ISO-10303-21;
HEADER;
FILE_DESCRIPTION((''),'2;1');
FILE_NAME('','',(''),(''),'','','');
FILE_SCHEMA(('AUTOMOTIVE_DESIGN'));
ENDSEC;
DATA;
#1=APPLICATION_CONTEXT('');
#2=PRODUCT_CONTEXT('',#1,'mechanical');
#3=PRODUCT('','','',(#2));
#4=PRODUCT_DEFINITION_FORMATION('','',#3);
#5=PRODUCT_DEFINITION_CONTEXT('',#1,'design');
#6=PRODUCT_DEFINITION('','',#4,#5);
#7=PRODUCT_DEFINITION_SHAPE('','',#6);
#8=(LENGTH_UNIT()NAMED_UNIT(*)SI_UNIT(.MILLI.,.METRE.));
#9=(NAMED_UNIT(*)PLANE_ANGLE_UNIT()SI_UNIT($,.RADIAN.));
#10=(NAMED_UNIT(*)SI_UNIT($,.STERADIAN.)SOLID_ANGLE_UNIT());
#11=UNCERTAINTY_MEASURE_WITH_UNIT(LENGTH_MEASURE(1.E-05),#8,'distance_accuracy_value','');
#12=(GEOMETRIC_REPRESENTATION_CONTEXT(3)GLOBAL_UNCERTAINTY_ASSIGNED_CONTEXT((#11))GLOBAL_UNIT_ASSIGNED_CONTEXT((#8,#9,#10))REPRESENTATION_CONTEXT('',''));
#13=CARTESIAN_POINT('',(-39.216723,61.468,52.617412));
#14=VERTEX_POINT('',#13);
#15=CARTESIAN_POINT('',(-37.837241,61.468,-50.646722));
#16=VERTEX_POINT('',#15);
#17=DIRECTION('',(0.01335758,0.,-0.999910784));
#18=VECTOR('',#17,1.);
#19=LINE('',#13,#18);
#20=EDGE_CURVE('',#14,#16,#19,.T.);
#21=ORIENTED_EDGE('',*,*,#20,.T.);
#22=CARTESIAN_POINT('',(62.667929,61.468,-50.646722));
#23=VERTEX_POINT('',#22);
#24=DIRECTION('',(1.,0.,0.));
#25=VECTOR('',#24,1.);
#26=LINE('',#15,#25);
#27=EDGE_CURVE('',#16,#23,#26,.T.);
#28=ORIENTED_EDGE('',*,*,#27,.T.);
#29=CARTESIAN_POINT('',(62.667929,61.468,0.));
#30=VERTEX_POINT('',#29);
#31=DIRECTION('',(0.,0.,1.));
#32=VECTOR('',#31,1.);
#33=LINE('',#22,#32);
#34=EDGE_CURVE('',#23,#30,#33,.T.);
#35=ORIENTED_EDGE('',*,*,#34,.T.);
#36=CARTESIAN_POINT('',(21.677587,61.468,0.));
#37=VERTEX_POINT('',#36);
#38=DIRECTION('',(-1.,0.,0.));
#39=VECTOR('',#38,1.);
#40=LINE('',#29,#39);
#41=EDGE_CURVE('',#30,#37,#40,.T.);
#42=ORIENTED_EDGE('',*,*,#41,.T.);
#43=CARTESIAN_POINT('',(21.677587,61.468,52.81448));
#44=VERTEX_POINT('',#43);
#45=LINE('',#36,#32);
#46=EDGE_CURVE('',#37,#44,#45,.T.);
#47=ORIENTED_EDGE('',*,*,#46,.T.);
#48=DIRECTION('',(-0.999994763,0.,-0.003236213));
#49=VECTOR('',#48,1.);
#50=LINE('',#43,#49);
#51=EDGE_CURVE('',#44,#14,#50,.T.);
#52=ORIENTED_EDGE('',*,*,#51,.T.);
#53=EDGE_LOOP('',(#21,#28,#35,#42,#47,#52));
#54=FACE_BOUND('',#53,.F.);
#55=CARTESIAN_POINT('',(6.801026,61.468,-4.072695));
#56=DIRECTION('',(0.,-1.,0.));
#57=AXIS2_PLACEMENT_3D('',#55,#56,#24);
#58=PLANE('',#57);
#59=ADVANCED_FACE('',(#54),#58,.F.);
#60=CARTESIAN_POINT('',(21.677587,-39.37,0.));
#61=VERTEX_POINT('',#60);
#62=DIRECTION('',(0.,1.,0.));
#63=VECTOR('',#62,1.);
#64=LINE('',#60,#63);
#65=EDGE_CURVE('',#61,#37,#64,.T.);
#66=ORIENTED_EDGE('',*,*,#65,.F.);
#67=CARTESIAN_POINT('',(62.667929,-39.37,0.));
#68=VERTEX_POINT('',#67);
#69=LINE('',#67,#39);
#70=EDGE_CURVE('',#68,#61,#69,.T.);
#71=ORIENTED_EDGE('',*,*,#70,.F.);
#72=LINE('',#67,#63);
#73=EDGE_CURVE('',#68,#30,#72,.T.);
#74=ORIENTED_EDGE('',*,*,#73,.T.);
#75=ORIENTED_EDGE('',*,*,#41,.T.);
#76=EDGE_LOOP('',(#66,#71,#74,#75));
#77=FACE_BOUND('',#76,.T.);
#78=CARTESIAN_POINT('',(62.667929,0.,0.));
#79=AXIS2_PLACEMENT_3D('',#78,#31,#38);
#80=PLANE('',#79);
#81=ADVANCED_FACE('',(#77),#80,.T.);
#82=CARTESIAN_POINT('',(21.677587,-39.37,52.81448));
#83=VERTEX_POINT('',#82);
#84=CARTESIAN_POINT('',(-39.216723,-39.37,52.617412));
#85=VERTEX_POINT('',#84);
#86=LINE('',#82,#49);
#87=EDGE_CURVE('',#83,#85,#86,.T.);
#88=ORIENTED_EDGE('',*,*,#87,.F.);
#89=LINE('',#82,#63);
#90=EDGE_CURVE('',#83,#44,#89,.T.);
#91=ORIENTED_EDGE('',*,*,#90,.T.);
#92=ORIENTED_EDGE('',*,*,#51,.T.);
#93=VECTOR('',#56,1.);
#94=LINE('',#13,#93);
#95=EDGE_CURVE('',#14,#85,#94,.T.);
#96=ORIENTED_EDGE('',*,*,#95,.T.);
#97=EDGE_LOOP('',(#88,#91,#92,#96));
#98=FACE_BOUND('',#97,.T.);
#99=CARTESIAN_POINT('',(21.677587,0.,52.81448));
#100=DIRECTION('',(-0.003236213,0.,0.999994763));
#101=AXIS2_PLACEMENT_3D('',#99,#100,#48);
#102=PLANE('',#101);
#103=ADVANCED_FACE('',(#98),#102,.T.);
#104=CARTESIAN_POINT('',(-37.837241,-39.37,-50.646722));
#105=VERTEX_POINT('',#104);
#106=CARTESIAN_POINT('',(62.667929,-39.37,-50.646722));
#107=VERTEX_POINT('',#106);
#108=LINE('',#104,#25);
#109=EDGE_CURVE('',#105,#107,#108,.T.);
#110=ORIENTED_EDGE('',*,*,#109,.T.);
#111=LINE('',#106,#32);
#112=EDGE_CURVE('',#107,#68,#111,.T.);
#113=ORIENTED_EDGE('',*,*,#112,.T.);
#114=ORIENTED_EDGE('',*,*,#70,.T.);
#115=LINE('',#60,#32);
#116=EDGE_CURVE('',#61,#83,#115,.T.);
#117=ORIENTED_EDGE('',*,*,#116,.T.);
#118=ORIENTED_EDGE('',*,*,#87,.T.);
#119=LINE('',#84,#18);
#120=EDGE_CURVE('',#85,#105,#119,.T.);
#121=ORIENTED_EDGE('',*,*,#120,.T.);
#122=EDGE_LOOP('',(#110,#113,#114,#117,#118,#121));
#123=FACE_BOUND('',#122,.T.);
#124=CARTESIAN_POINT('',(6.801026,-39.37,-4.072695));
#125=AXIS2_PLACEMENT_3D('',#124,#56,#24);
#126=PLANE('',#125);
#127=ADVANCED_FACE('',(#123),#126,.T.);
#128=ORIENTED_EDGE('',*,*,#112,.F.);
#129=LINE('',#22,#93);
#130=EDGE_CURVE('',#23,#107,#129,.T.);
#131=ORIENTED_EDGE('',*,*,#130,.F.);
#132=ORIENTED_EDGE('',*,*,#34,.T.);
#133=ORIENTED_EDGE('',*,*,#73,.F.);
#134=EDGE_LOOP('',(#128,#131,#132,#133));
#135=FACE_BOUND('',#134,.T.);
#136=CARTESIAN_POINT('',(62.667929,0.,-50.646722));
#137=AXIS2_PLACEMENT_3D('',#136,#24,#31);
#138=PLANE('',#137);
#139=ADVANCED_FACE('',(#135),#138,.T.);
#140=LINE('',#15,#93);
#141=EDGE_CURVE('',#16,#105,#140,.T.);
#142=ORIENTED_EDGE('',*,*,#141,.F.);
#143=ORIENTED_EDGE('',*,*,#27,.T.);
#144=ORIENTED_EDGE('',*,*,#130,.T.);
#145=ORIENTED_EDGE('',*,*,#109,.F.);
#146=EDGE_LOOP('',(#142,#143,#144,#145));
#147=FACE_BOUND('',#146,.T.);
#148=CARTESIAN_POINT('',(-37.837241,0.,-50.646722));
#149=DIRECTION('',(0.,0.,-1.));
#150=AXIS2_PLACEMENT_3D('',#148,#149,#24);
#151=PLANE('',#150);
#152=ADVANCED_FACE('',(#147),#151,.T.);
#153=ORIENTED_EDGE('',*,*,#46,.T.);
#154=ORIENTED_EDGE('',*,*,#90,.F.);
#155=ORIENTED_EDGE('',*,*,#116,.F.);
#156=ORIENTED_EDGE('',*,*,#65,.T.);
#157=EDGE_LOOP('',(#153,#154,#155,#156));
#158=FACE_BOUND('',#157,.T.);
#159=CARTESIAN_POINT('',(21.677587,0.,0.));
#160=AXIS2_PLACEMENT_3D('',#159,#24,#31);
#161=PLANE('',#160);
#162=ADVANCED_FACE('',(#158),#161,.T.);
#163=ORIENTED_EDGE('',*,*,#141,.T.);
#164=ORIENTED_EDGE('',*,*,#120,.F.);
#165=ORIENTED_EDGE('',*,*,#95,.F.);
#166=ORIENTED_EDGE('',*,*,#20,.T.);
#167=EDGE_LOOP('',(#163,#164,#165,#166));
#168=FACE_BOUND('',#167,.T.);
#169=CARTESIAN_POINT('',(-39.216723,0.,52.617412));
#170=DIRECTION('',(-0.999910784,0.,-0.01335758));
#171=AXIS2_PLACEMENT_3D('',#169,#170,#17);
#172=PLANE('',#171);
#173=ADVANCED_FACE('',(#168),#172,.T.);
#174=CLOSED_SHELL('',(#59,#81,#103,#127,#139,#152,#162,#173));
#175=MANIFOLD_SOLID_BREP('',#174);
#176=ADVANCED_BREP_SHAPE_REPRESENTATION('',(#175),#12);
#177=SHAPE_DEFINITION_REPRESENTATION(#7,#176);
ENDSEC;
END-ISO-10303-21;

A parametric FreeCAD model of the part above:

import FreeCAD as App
import Part
import Sketcher
from FreeCAD import Vector
Q = App.Units.Quantity

doc = App.newDocument("Part")
body = doc.addObject("PartDesign::Body", "Body")

# Sketch on XZ plane
sketch1 = body.newObject("Sketcher::SketchObject", "Sketch")
sketch1.AttachmentSupport = (doc.getObject("XZ_Plane"), [""])
sketch1.MapMode = "FlatFace"
sketch1.addGeometry(Part.LineSegment(Vector(21.677587, 52.81448, 0), Vector(-39.216723, 52.617412, 0)), False)
sketch1.addGeometry(Part.LineSegment(Vector(-39.216723, 52.617412, 0), Vector(-37.837241, -50.646722, 0)), False)
sketch1.addGeometry(Part.LineSegment(Vector(-37.837241, -50.646722, 0), Vector(62.667929, -50.646722, 0)), False)
sketch1.addGeometry(Part.LineSegment(Vector(62.667929, -50.646722, 0), Vector(62.667929, 0, 0)), False)
sketch1.addGeometry(Part.LineSegment(Vector(62.667929, 0, 0), Vector(21.677587, 0, 0)), False)
sketch1.addGeometry(Part.LineSegment(Vector(21.677587, 0, 0), Vector(21.677587, 52.81448, 0)), False)
sketch1.addConstraint(Sketcher.Constraint("Coincident", 0, 2, 1, 1))
sketch1.addConstraint(Sketcher.Constraint("Coincident", 1, 2, 2, 1))
sketch1.addConstraint(Sketcher.Constraint("Coincident", 2, 2, 3, 1))
sketch1.addConstraint(Sketcher.Constraint("Coincident", 3, 2, 4, 1))
sketch1.addConstraint(Sketcher.Constraint("Coincident", 4, 2, 5, 1))
sketch1.addConstraint(Sketcher.Constraint("Coincident", 5, 2, 0, 1))
sketch1.addConstraint(Sketcher.Constraint("Horizontal", 2))
sketch1.addConstraint(Sketcher.Constraint("Vertical", 3))
sketch1.addConstraint(Sketcher.Constraint("Horizontal", 4))
sketch1.addConstraint(Sketcher.Constraint("Vertical", 5))
sketch1.addConstraint(Sketcher.Constraint("PointOnObject", 3, 2, -1))
sketch1.addConstraint(Sketcher.Constraint("DistanceX", 2, 1, 2, 2, 100.50517))
sketch1.addConstraint(Sketcher.Constraint("DistanceX", 4, 2, 4, 1, 40.990342))
sketch1.addConstraint(Sketcher.Constraint("DistanceY", 3, 1, 3, 2, 50.646722))
sketch1.addConstraint(Sketcher.Constraint("DistanceY", 5, 1, 5, 2, 52.81448))
sketch1.addConstraint(Sketcher.Constraint("Distance", 0, 60.894629))
sketch1.addConstraint(Sketcher.Constraint("DistanceX", 1, 2, -1, 1, 37.837241))
sketch1.addConstraint(Sketcher.Constraint("DistanceY", 0, 2, 5, 2, 0.197068))
pad1 = body.newObject("PartDesign::Pad", "Pad")
pad1.Profile = sketch1
pad1.Type = "TwoLengths"
pad1.Length = Q("1.55 in")
pad1.Length2 = Q("2.42 in")

doc.recompute()
